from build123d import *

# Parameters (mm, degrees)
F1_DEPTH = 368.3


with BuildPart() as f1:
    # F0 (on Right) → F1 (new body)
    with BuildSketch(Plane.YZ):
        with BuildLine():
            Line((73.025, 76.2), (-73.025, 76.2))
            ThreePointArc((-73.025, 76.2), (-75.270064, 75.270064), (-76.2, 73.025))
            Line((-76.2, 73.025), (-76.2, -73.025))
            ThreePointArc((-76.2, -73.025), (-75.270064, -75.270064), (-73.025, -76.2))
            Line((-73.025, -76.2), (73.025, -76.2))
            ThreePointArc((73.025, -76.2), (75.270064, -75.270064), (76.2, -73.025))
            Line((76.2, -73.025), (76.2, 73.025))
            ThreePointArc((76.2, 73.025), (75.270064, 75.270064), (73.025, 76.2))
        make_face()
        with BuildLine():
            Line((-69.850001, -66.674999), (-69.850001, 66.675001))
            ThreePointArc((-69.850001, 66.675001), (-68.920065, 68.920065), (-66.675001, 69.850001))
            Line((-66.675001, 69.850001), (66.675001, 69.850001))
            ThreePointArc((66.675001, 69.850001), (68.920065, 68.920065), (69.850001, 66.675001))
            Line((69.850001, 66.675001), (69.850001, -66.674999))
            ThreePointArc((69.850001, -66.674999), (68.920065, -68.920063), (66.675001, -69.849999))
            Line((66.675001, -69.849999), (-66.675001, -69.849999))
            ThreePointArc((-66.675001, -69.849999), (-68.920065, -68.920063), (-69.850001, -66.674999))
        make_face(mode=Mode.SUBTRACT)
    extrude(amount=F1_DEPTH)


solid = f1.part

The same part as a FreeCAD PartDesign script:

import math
import FreeCAD as App
import Part
import Sketcher
from FreeCAD import Vector
Q = App.Units.Quantity

doc = App.newDocument("Part")
params = doc.addObject("Spreadsheet::Sheet", "Params")
for row, (alias, value) in enumerate([
    ("sketch1_radius", "0.125 in"),
    ("sketch1_width", "5.2500001 in"),
    ("pad1_length", "14.5 in"),
], start=1):
    params.set(f"A{row}", alias)
    params.set(f"B{row}", "=" + value)
    params.setAlias(f"B{row}", alias)

body = doc.addObject("PartDesign::Body", "Body")

# Sketch on YZ plane
sketch1 = doc.addObject("Sketcher::SketchObject", "Sketch")
body.addObject(sketch1)
sketch1.AttachmentSupport = (doc.YZ_Plane, [""])
sketch1.MapMode = "FlatFace"
sketch1.addGeometry([
    Part.LineSegment(Vector(73, 76.2, 0), Vector(-73, 76.2, 0)),  # 0
    Part.ArcOfCircle(Part.Circle(Vector(-73, 73, 0), Vector(0, 0, 1), 3.2), math.radians(90), math.radians(180)),  # 1
    Part.LineSegment(Vector(-76.2, 73, 0), Vector(-76.2, -73, 0)),  # 2
    Part.ArcOfCircle(Part.Circle(Vector(-73, -73, 0), Vector(0, 0, 1), 3.2), math.radians(-180), math.radians(-90)),  # 3
    Part.LineSegment(Vector(-73, -76.2, 0), Vector(73, -76.2, 0)),  # 4
    Part.ArcOfCircle(Part.Circle(Vector(73, -73, 0), Vector(0, 0, 1), 3.2), math.radians(-90), math.radians(0)),  # 5
    Part.LineSegment(Vector(76.2, -73, 0), Vector(76.2, 73, 0)),  # 6
    Part.ArcOfCircle(Part.Circle(Vector(73, 73, 0), Vector(0, 0, 1), 3.2), math.radians(0), math.radians(90)),  # 7
    Part.ArcOfCircle(Part.Circle(Vector(-66.7, -66.7, 0), Vector(0, 0, 1), 3.2), math.radians(-180), math.radians(-90)),  # 8
    Part.LineSegment(Vector(-69.9, -66.7, 0), Vector(-69.9, 66.7, 0)),  # 9
    Part.ArcOfCircle(Part.Circle(Vector(-66.7, 66.7, 0), Vector(0, 0, 1), 3.2), math.radians(90), math.radians(180)),  # 10
    Part.LineSegment(Vector(-66.7, 69.9, 0), Vector(66.7, 69.9, 0)),  # 11
    Part.ArcOfCircle(Part.Circle(Vector(66.7, 66.7, 0), Vector(0, 0, 1), 3.2), math.radians(0), math.radians(90)),  # 12
    Part.LineSegment(Vector(69.9, 66.7, 0), Vector(69.9, -66.7, 0)),  # 13
    Part.ArcOfCircle(Part.Circle(Vector(66.7, -66.7, 0), Vector(0, 0, 1), 3.2), math.radians(-90), math.radians(0)),  # 14
    Part.LineSegment(Vector(66.7, -69.8, 0), Vector(-66.7, -69.8, 0)),  # 15
], False)
sketch1.addConstraint([
    Sketcher.Constraint("Tangent", 0, 2, 1, 1),
    Sketcher.Constraint("Tangent", 1, 2, 2, 1),
    Sketcher.Constraint("Tangent", 2, 2, 3, 1),
    Sketcher.Constraint("Tangent", 3, 2, 4, 1),
    Sketcher.Constraint("Tangent", 4, 2, 5, 1),
    Sketcher.Constraint("Tangent", 5, 2, 6, 1),
    Sketcher.Constraint("Tangent", 6, 2, 7, 1),
    Sketcher.Constraint("Tangent", 7, 2, 0, 1),
    Sketcher.Constraint("Tangent", 8, 1, 9, 1),
    Sketcher.Constraint("Tangent", 9, 2, 10, 2),
    Sketcher.Constraint("Tangent", 10, 1, 11, 1),
    Sketcher.Constraint("Tangent", 11, 2, 12, 2),
    Sketcher.Constraint("Tangent", 12, 1, 13, 1),
    Sketcher.Constraint("Tangent", 13, 2, 14, 2),
    Sketcher.Constraint("Tangent", 14, 1, 15, 1),
    Sketcher.Constraint("Tangent", 15, 2, 8, 2),
    Sketcher.Constraint("Horizontal", 0),
    Sketcher.Constraint("Vertical", 2),
    Sketcher.Constraint("Horizontal", 4),
    Sketcher.Constraint("Vertical", 6),
    Sketcher.Constraint("Vertical", 9),
    Sketcher.Constraint("Horizontal", 11),
    Sketcher.Constraint("Vertical", 13),
    Sketcher.Constraint("Horizontal", 15),
    Sketcher.Constraint("Equal", 1, 3),
    Sketcher.Constraint("Equal", 3, 5),
    Sketcher.Constraint("Equal", 5, 7),
    Sketcher.Constraint("Equal", 7, 8),
    Sketcher.Constraint("Equal", 8, 10),
    Sketcher.Constraint("Equal", 10, 12),
    Sketcher.Constraint("Equal", 12, 14),
    Sketcher.Constraint("Symmetric", 1, 3, 5, 3, -1, 1),
    Sketcher.Constraint("Symmetric", 8, 3, 12, 3, -1, 1),
    Sketcher.Constraint("Equal", 4, 2),
    Sketcher.Constraint("Equal", 15, 9),
    Sketcher.Constraint("DistanceY", -1, 1, 0, 2, Q("3 in")),
    Sketcher.Constraint("Radius", 1, Q("0.125 in")),
    Sketcher.Constraint("DistanceX", 11, 1, 11, 2, Q("5.2500001 in")),
])
sketch1.setExpression("Constraints[36]", "Params.sketch1_radius")
sketch1.setExpression("Constraints[37]", "Params.sketch1_width")
pad1 = doc.addObject("PartDesign::Pad", "Pad")
body.addObject(pad1)
pad1.Profile = sketch1
pad1.setExpression("Length", "Params.pad1_length")

doc.recompute()
